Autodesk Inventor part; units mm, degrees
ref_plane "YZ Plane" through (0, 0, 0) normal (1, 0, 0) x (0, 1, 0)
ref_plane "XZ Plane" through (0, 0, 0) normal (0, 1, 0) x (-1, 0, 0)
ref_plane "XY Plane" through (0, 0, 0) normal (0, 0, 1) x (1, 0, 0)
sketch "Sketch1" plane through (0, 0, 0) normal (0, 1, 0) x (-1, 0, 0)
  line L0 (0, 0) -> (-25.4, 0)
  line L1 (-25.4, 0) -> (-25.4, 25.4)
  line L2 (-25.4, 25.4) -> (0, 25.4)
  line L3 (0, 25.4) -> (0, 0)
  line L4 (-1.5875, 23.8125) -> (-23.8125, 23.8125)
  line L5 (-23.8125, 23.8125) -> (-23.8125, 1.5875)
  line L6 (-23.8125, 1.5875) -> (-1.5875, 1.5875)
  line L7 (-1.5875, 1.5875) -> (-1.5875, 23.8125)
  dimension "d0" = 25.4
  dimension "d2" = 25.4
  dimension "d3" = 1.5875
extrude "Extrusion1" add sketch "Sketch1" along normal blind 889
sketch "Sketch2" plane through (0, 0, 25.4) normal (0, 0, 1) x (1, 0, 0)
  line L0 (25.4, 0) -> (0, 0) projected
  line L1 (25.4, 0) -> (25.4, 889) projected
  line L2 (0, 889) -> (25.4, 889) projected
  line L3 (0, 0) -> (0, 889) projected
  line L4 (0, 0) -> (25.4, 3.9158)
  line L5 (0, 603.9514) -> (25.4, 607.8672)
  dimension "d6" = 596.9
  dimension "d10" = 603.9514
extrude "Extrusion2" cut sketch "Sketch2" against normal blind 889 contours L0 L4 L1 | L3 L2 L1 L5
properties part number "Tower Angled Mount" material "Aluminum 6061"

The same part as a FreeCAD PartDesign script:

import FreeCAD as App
import Part
import Sketcher
from FreeCAD import Vector
Q = App.Units.Quantity

doc = App.newDocument("Part")
params = doc.addObject("Spreadsheet::Sheet", "Params")
for row, (alias, value) in enumerate([
    ("sketch1_width", "1 in"),
    ("pad1_length", "35 in"),
    ("sketch2_width", "1 in"),
    ("pocket1_length", "35 in"),
], start=1):
    params.set(f"A{row}", alias)
    params.set(f"B{row}", "=" + value)
    params.setAlias(f"B{row}", alias)

body = doc.addObject("PartDesign::Body", "Body")

sketch1 = doc.addObject("Sketcher::SketchObject", "Sketch")
body.addObject(sketch1)
sketch1.AttachmentSupport = (doc.XZ_Plane, [""])
sketch1.MapMode = "FlatFace"
sketch1.addGeometry(Part.LineSegment(Vector(25, 0, 0), Vector(0, 0, 0)), False)
sketch1.addGeometry(Part.LineSegment(Vector(0, 0, 0), Vector(0, 25, 0)), False)
sketch1.addGeometry(Part.LineSegment(Vector(0, 25, 0), Vector(25, 25, 0)), False)
sketch1.addGeometry(Part.LineSegment(Vector(25, 25, 0), Vector(25, 0, 0)), False)
sketch1.addGeometry(Part.LineSegment(Vector(24, 24, 0), Vector(2, 24, 0)), False)
sketch1.addGeometry(Part.LineSegment(Vector(2, 24, 0), Vector(2, 2, 0)), False)
sketch1.addGeometry(Part.LineSegment(Vector(2, 2, 0), Vector(24, 2, 0)), False)
sketch1.addGeometry(Part.LineSegment(Vector(24, 2, 0), Vector(24, 24, 0)), False)
sketch1.addConstraint(Sketcher.Constraint("Coincident", 0, 2, 1, 1))
sketch1.addConstraint(Sketcher.Constraint("Coincident", 1, 2, 2, 1))
sketch1.addConstraint(Sketcher.Constraint("Coincident", 2, 2, 3, 1))
sketch1.addConstraint(Sketcher.Constraint("Coincident", 3, 2, 0, 1))
sketch1.addConstraint(Sketcher.Constraint("Coincident", 4, 2, 5, 1))
sketch1.addConstraint(Sketcher.Constraint("Coincident", 5, 2, 6, 1))
sketch1.addConstraint(Sketcher.Constraint("Coincident", 6, 2, 7, 1))
sketch1.addConstraint(Sketcher.Constraint("Coincident", 7, 2, 4, 1))
sketch1.addConstraint(Sketcher.Constraint("Horizontal", 0))
sketch1.addConstraint(Sketcher.Constraint("Vertical", 1))
sketch1.addConstraint(Sketcher.Constraint("Horizontal", 2))
sketch1.addConstraint(Sketcher.Constraint("Vertical", 3))
sketch1.addConstraint(Sketcher.Constraint("Horizontal", 4))
sketch1.addConstraint(Sketcher.Constraint("Vertical", 5))
sketch1.addConstraint(Sketcher.Constraint("Horizontal", 6))
sketch1.addConstraint(Sketcher.Constraint("Vertical", 7))
sketch1.addConstraint(Sketcher.Constraint("Coincident", 0, 2, -1, 1))
sketch1.addConstraint(Sketcher.Constraint("Equal", 2, 1))
sketch1.addConstraint(Sketcher.Constraint("Equal", 6, 5))
sketch1.addConstraint(Sketcher.Constraint("DistanceX", 0, 2, 0, 1, Q("1 in")))
sketch1.addConstraint(Sketcher.Constraint("DistanceX", -1, 1, 4, 2, Q("0.0625 in")))
sketch1.addConstraint(Sketcher.Constraint("DistanceY", -1, 1, 5, 2, Q("0.0625 in")))
sketch1.addConstraint(Sketcher.Constraint("DistanceY", 4, 2, 1, 2, Q("0.0625 in")))
sketch1.setExpression("Constraints[19]", "Params.sketch1_width")
pad1 = doc.addObject("PartDesign::Pad", "Pad")
body.addObject(pad1)
pad1.Profile = sketch1
pad1.setExpression("Length", "Params.pad1_length")
pad1.Reversed = True

sketch2 = doc.addObject("Sketcher::SketchObject", "Sketch001")
body.addObject(sketch2)
sketch2.AttachmentSupport = (doc.XY_Plane, [""])
sketch2.MapMode = "FlatFace"
sketch2.AttachmentOffset = App.Placement(Vector(0, 0, 1 * 25.4), App.Rotation())
sketch2.addGeometry(Part.LineSegment(Vector(0, 0, 0), Vector(25.4, 0, 0)), False)
sketch2.addGeometry(Part.LineSegment(Vector(25.4, 0, 0), Vector(25.4, 3.9, 0)), False)
sketch2.addGeometry(Part.LineSegment(Vector(25.4, 3.9, 0), Vector(0, 0, 0)), False)
sketch2.addGeometry(Part.LineSegment(Vector(0, 889, 0), Vector(0, 604, 0)), False)
sketch2.addGeometry(Part.LineSegment(Vector(0, 604, 0), Vector(25.4, 607.9, 0)), False)
sketch2.addGeometry(Part.LineSegment(Vector(25.4, 607.9, 0), Vector(25.4, 889, 0)), False)
sketch2.addGeometry(Part.LineSegment(Vector(25.4, 889, 0), Vector(0, 889, 0)), False)
sketch2.addConstraint(Sketcher.Constraint("Coincident", 0, 2, 1, 1))
sketch2.addConstraint(Sketcher.Constraint("Coincident", 1, 2, 2, 1))
sketch2.addConstraint(Sketcher.Constraint("Coincident", 2, 2, 0, 1))
sketch2.addConstraint(Sketcher.Constraint("Coincident", 3, 2, 4, 1))
sketch2.addConstraint(Sketcher.Constraint("Coincident", 4, 2, 5, 1))
sketch2.addConstraint(Sketcher.Constraint("Coincident", 5, 2, 6, 1))
sketch2.addConstraint(Sketcher.Constraint("Coincident", 6, 2, 3, 1))
sketch2.addConstraint(Sketcher.Constraint("Horizontal", 0))
sketch2.addConstraint(Sketcher.Constraint("Vertical", 1))
sketch2.addConstraint(Sketcher.Constraint("Vertical", 3))
sketch2.addConstraint(Sketcher.Constraint("Vertical", 5))
sketch2.addConstraint(Sketcher.Constraint("Horizontal", 6))
sketch2.addConstraint(Sketcher.Constraint("Coincident", 2, 2, -1, 1))
sketch2.addConstraint(Sketcher.Constraint("PointOnObject", 3, 2, -2))
sketch2.addConstraint(Sketcher.Constraint("Parallel", 2, 4))
sketch2.addConstraint(Sketcher.Constraint("Vertical", 1, 2, 4, 2))
sketch2.addConstraint(Sketcher.Constraint("DistanceX", 0, 1, 0, 2, Q("1 in")))
sketch2.addConstraint(Sketcher.Constraint("DistanceY", -1, 1, 5, 2, Q("35 in")))
sketch2.addConstraint(Sketcher.Constraint("DistanceY", -1, 1, 3, 2, Q("603.9514 mm")))
sketch2.addConstraint(Sketcher.Constraint("DistanceY", 1, 1, 1, 2, Q("3.9158 mm")))
sketch2.setExpression("Constraints[16]", "Params.sketch2_width")
pocket1 = doc.addObject("PartDesign::Pocket", "Pocket")
body.addObject(pocket1)
pocket1.Profile = sketch2
pocket1.setExpression("Length", "Params.pocket1_length")

doc.recompute()
